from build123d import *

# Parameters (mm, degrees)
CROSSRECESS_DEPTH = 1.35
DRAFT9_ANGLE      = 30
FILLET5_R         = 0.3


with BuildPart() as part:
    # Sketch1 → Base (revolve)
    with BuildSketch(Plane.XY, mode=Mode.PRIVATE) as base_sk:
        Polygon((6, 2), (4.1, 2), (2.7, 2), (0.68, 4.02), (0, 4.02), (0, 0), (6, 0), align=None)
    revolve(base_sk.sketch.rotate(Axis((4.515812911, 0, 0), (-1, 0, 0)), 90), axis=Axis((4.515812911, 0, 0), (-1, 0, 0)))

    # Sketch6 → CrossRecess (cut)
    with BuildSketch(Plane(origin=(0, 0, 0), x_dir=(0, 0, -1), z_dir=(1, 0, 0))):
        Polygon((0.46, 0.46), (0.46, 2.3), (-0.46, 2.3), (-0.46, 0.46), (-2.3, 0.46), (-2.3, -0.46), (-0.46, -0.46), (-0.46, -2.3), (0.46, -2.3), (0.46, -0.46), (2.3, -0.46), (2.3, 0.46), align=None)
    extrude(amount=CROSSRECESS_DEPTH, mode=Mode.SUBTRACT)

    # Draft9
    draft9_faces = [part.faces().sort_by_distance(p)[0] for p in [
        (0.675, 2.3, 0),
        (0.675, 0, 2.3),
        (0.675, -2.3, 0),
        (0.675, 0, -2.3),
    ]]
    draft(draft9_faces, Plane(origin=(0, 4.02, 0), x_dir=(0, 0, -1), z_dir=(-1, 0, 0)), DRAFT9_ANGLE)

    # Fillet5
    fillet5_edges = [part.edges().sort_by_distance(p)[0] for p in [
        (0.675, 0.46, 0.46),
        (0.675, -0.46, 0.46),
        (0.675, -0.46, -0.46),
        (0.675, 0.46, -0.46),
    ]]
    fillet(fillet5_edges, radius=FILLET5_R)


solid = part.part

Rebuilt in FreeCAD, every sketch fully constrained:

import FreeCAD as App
import Part
import Sketcher
Q = App.Units.Quantity


def edges_at(feature, points):
    """Names of the edges that pass closest to the given points."""
    edges = feature.Shape.Edges
    near = lambda p: min(range(len(edges)), key=lambda i: edges[i].distToShape(Part.Vertex(*p))[0])
    return sorted({f"Edge{near(p) + 1}" for p in points})


def faces_at(feature, points):
    """Names of the faces that lie closest to the given points."""
    faces = feature.Shape.Faces
    near = lambda p: min(range(len(faces)), key=lambda i: faces[i].distToShape(Part.Vertex(*p))[0])
    return sorted({f"Face{near(p) + 1}" for p in points})

doc = App.newDocument("Part")
body = doc.addObject("PartDesign::Body", "Body")

# Sketch on XY plane
sketch1 = body.newObject("Sketcher::SketchObject", "Sketch")
sketch1.AttachmentSupport = (doc.getObject("XY_Plane"), [""])
sketch1.MapMode = "FlatFace"
sketch1.addGeometry(Part.LineSegment(App.Vector(6, 2, 0), App.Vector(2.7, 2, 0)), False)
sketch1.addGeometry(Part.LineSegment(App.Vector(2.7, 2, 0), App.Vector(0.7, 4, 0)), False)
sketch1.addGeometry(Part.LineSegment(App.Vector(0.7, 4, 0), App.Vector(0, 4, 0)), False)
sketch1.addGeometry(Part.LineSegment(App.Vector(0, 4, 0), App.Vector(0, 0, 0)), False)
sketch1.addGeometry(Part.LineSegment(App.Vector(0, 0, 0), App.Vector(6, 0, 0)), False)
sketch1.addGeometry(Part.LineSegment(App.Vector(6, 0, 0), App.Vector(6, 2, 0)), False)
sketch1.addConstraint(Sketcher.Constraint("Coincident", 0, 2, 1, 1))
sketch1.addConstraint(Sketcher.Constraint("Coincident", 1, 2, 2, 1))
sketch1.addConstraint(Sketcher.Constraint("Coincident", 2, 2, 3, 1))
sketch1.addConstraint(Sketcher.Constraint("Coincident", 3, 2, 4, 1))
sketch1.addConstraint(Sketcher.Constraint("Coincident", 4, 2, 5, 1))
sketch1.addConstraint(Sketcher.Constraint("Coincident", 5, 2, 0, 1))
sketch1.addConstraint(Sketcher.Constraint("Horizontal", 0))
sketch1.addConstraint(Sketcher.Constraint("Horizontal", 2))
sketch1.addConstraint(Sketcher.Constraint("Vertical", 3))
sketch1.addConstraint(Sketcher.Constraint("Horizontal", 4))
sketch1.addConstraint(Sketcher.Constraint("Vertical", 5))
sketch1.addConstraint(Sketcher.Constraint("Coincident", 3, 2, -1, 1))
sketch1.addConstraint(Sketcher.Constraint("DistanceX", 4, 1, 4, 2, 6.0))
sketch1.addConstraint(Sketcher.Constraint("DistanceY", 5, 1, 5, 2, 2.0))
sketch1.addConstraint(Sketcher.Constraint("Angle", 1, Q("135 deg")))
sketch1.addConstraint(Sketcher.Constraint("DistanceX", 0, 2, 0, 1, 3.3))
sketch1.addConstraint(Sketcher.Constraint("DistanceX", 2, 2, 2, 1, 0.68))
revolution = body.newObject("PartDesign::Revolution", "Revolution")
revolution.Profile = sketch1
revolution.ReferenceAxis = (sketch1, ["H_Axis"])
revolution.Angle = 360

# Sketch on YZ plane
sketch2 = body.newObject("Sketcher::SketchObject", "Sketch001")
sketch2.AttachmentSupport = (doc.getObject("YZ_Plane"), [""])
sketch2.MapMode = "FlatFace"
sketch2.addGeometry(Part.LineSegment(App.Vector(0.5, -0.5, 0), App.Vector(2.3, -0.5, 0)), False)
sketch2.addGeometry(Part.LineSegment(App.Vector(2.3, -0.5, 0), App.Vector(2.3, 0.5, 0)), False)
sketch2.addGeometry(Part.LineSegment(App.Vector(2.3, 0.5, 0), App.Vector(0.5, 0.5, 0)), False)
sketch2.addGeometry(Part.LineSegment(App.Vector(0.5, 0.5, 0), App.Vector(0.5, 2.3, 0)), False)
sketch2.addGeometry(Part.LineSegment(App.Vector(0.5, 2.3, 0), App.Vector(-0.5, 2.3, 0)), False)
sketch2.addGeometry(Part.LineSegment(App.Vector(-0.5, 2.3, 0), App.Vector(-0.5, 0.5, 0)), False)
sketch2.addGeometry(Part.LineSegment(App.Vector(-0.5, 0.5, 0), App.Vector(-2.3, 0.5, 0)), False)
sketch2.addGeometry(Part.LineSegment(App.Vector(-2.3, 0.5, 0), App.Vector(-2.3, -0.5, 0)), False)
sketch2.addGeometry(Part.LineSegment(App.Vector(-2.3, -0.5, 0), App.Vector(-0.5, -0.5, 0)), False)
sketch2.addGeometry(Part.LineSegment(App.Vector(-0.5, -0.5, 0), App.Vector(-0.5, -2.3, 0)), False)
sketch2.addGeometry(Part.LineSegment(App.Vector(-0.5, -2.3, 0), App.Vector(0.5, -2.3, 0)), False)
sketch2.addGeometry(Part.LineSegment(App.Vector(0.5, -2.3, 0), App.Vector(0.5, -0.5, 0)), False)
sketch2.addConstraint(Sketcher.Constraint("Coincident", 0, 2, 1, 1))
sketch2.addConstraint(Sketcher.Constraint("Coincident", 1, 2, 2, 1))
sketch2.addConstraint(Sketcher.Constraint("Coincident", 2, 2, 3, 1))
sketch2.addConstraint(Sketcher.Constraint("Coincident", 3, 2, 4, 1))
sketch2.addConstraint(Sketcher.Constraint("Coincident", 4, 2, 5, 1))
sketch2.addConstraint(Sketcher.Constraint("Coincident", 5, 2, 6, 1))
sketch2.addConstraint(Sketcher.Constraint("Coincident", 6, 2, 7, 1))
sketch2.addConstraint(Sketcher.Constraint("Coincident", 7, 2, 8, 1))
sketch2.addConstraint(Sketcher.Constraint("Coincident", 8, 2, 9, 1))
sketch2.addConstraint(Sketcher.Constraint("Coincident", 9, 2, 10, 1))
sketch2.addConstraint(Sketcher.Constraint("Coincident", 10, 2, 11, 1))
sketch2.addConstraint(Sketcher.Constraint("Coincident", 11, 2, 0, 1))
sketch2.addConstraint(Sketcher.Constraint("Horizontal", 0))
sketch2.addConstraint(Sketcher.Constraint("Vertical", 1))
sketch2.addConstraint(Sketcher.Constraint("Horizontal", 2))
sketch2.addConstraint(Sketcher.Constraint("Vertical", 3))
sketch2.addConstraint(Sketcher.Constraint("Horizontal", 4))
sketch2.addConstraint(Sketcher.Constraint("Vertical", 5))
sketch2.addConstraint(Sketcher.Constraint("Horizontal", 6))
sketch2.addConstraint(Sketcher.Constraint("Vertical", 7))
sketch2.addConstraint(Sketcher.Constraint("Horizontal", 8))
sketch2.addConstraint(Sketcher.Constraint("Vertical", 9))
sketch2.addConstraint(Sketcher.Constraint("Horizontal", 10))
sketch2.addConstraint(Sketcher.Constraint("Vertical", 11))
sketch2.addConstraint(Sketcher.Constraint("Symmetric", 0, 2, 6, 2, -1, 1))
sketch2.addConstraint(Sketcher.Constraint("Symmetric", 2, 2, 8, 2, -1, 1))
sketch2.addConstraint(Sketcher.Constraint("Symmetric", 4, 2, 10, 2, -1, 1))
sketch2.addConstraint(Sketcher.Constraint("Symmetric", 2, 2, 5, 2, -2))
sketch2.addConstraint(Sketcher.Constraint("Equal", 10, 1))
sketch2.addConstraint(Sketcher.Constraint("Equal", 8, 3))
sketch2.addConstraint(Sketcher.Constraint("DistanceX", 0, 1, 0, 2, 1.84))
sketch2.addConstraint(Sketcher.Constraint("DistanceX", 4, 2, 4, 1, 0.92))
pocket1 = body.newObject("PartDesign::Pocket", "Pocket")
pocket1.Profile = sketch2
pocket1.Length = 1.35
pocket1.Reversed = True
doc.recompute()

draft = body.newObject("PartDesign::Draft", "Draft")
draft.Base = (pocket1, faces_at(pocket1, [
    (0.675, 2.3, 0),
    (0.675, 0, 2.3),
    (0.675, -2.3, 0),
    (0.675, 0, -2.3),
]))
draft.NeutralPlane = (doc.getObject("YZ_Plane"), [""])
draft.Angle = 30
draft.Reversed = True
doc.recompute()

fillet = body.newObject("PartDesign::Fillet", "Fillet")
fillet.Base = (draft, edges_at(draft, [
    (0.675, 0.46, 0.46),
    (0.675, -0.46, 0.46),
    (0.675, -0.46, -0.46),
    (0.675, 0.46, -0.46),
]))
fillet.Radius = 0.3

doc.recompute()
